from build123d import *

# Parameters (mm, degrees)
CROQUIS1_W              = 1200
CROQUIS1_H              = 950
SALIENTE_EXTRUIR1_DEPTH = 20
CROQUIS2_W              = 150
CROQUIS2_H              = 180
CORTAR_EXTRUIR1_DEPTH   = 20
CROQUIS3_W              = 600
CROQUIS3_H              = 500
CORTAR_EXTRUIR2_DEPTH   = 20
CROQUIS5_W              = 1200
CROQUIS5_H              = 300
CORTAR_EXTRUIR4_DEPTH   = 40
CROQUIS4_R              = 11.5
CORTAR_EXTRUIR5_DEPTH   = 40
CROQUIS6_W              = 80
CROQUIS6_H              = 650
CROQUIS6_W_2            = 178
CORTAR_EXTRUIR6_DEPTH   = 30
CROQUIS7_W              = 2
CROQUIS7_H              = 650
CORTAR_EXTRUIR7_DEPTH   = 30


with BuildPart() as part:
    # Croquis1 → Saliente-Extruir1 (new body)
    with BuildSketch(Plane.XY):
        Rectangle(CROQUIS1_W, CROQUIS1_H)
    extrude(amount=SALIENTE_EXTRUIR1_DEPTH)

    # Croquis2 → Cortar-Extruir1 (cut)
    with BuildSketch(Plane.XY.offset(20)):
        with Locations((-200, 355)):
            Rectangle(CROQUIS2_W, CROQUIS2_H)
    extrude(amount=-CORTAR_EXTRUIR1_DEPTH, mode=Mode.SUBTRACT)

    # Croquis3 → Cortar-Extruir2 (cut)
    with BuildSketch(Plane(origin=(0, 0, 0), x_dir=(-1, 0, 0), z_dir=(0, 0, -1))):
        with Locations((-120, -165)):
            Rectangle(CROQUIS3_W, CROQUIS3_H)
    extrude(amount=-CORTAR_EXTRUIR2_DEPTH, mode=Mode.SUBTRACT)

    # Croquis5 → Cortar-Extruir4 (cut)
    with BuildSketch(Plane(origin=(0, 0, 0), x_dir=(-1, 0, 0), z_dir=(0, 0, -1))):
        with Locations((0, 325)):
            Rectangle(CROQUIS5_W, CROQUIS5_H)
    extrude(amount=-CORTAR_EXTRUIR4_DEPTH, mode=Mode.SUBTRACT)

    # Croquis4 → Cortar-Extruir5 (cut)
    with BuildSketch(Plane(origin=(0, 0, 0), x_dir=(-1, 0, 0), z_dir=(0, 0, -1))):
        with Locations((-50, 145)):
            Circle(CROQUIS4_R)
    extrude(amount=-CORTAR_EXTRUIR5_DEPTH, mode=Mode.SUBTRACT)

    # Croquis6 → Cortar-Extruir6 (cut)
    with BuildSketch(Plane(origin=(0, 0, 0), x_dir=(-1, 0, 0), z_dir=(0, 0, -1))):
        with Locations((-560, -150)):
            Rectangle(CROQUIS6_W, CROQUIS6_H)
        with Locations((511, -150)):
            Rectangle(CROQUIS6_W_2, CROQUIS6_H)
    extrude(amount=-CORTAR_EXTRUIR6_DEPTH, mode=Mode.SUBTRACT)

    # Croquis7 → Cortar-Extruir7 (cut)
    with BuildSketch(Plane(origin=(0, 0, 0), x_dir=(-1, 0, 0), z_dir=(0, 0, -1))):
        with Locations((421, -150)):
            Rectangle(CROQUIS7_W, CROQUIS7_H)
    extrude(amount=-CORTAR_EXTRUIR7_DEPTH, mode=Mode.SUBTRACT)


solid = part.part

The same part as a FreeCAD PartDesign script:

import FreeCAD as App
import Part
import Sketcher
from FreeCAD import Vector
Q = App.Units.Quantity

doc = App.newDocument("Part")
body = doc.addObject("PartDesign::Body", "Body")

sketch1 = doc.addObject("Sketcher::SketchObject", "Sketch")
body.addObject(sketch1)
sketch1.AttachmentSupport = (doc.XY_Plane, [""])
sketch1.MapMode = "FlatFace"
sketch1.addGeometry([
    Part.LineSegment(Vector(-600, 475, 0), Vector(-600, -475, 0)),
    Part.LineSegment(Vector(-600, -475, 0), Vector(600, -475, 0)),
    Part.LineSegment(Vector(600, -475, 0), Vector(600, 475, 0)),
    Part.LineSegment(Vector(600, 475, 0), Vector(-600, 475, 0)),
], False)
sketch1.addConstraint([
    Sketcher.Constraint("Coincident", 0, 2, 1, 1),
    Sketcher.Constraint("Coincident", 1, 2, 2, 1),
    Sketcher.Constraint("Coincident", 2, 2, 3, 1),
    Sketcher.Constraint("Coincident", 3, 2, 0, 1),
    Sketcher.Constraint("Vertical", 0),
    Sketcher.Constraint("Horizontal", 1),
    Sketcher.Constraint("Vertical", 2),
    Sketcher.Constraint("Horizontal", 3),
    Sketcher.Constraint("Symmetric", 0, 2, 2, 2, -1, 1),
    Sketcher.Constraint("DistanceX", 1, 1, 1, 2, Q("1200 mm")),
    Sketcher.Constraint("DistanceY", 0, 2, 0, 1, Q("950 mm")),
])
pad1 = doc.addObject("PartDesign::Pad", "Pad")
body.addObject(pad1)
pad1.Profile = sketch1
pad1.Length = 20

sketch2 = doc.addObject("Sketcher::SketchObject", "Sketch001")
body.addObject(sketch2)
sketch2.AttachmentSupport = (doc.XY_Plane, [""])
sketch2.MapMode = "FlatFace"
sketch2.AttachmentOffset = App.Placement(Vector(0, 0, 20), App.Rotation())
sketch2.addGeometry([
    Part.LineSegment(Vector(-275, 445, 0), Vector(-275, 265, 0)),
    Part.LineSegment(Vector(-275, 265, 0), Vector(-125, 265, 0)),
    Part.LineSegment(Vector(-125, 265, 0), Vector(-125, 445, 0)),
    Part.LineSegment(Vector(-125, 445, 0), Vector(-275, 445, 0)),
], False)
sketch2.addConstraint([
    Sketcher.Constraint("Coincident", 0, 2, 1, 1),
    Sketcher.Constraint("Coincident", 1, 2, 2, 1),
    Sketcher.Constraint("Coincident", 2, 2, 3, 1),
    Sketcher.Constraint("Coincident", 3, 2, 0, 1),
    Sketcher.Constraint("Vertical", 0),
    Sketcher.Constraint("Horizontal", 1),
    Sketcher.Constraint("Vertical", 2),
    Sketcher.Constraint("Horizontal", 3),
    Sketcher.Constraint("DistanceX", 1, 1, 1, 2, Q("150 mm")),
    Sketcher.Constraint("DistanceY", 0, 2, 0, 1, Q("180 mm")),
    Sketcher.Constraint("DistanceX", 0, 2, -1, 1, Q("275 mm")),
    Sketcher.Constraint("DistanceY", -1, 1, 0, 2, Q("265 mm")),
])
pocket1 = doc.addObject("PartDesign::Pocket", "Pocket")
body.addObject(pocket1)
pocket1.Profile = sketch2
pocket1.Length = 20

sketch3 = doc.addObject("Sketcher::SketchObject", "Sketch002")
body.addObject(sketch3)
sketch3.AttachmentSupport = (doc.XY_Plane, [""])
sketch3.MapMode = "FlatFace"
sketch3.addGeometry([
    Part.LineSegment(Vector(420, 85, 0), Vector(420, -415, 0)),
    Part.LineSegment(Vector(420, -415, 0), Vector(-180, -415, 0)),
    Part.LineSegment(Vector(-180, -415, 0), Vector(-180, 85, 0)),
    Part.LineSegment(Vector(-180, 85, 0), Vector(420, 85, 0)),
], False)
sketch3.addConstraint([
    Sketcher.Constraint("Coincident", 0, 2, 1, 1),
    Sketcher.Constraint("Coincident", 1, 2, 2, 1),
    Sketcher.Constraint("Coincident", 2, 2, 3, 1),
    Sketcher.Constraint("Coincident", 3, 2, 0, 1),
    Sketcher.Constraint("Vertical", 0),
    Sketcher.Constraint("Horizontal", 1),
    Sketcher.Constraint("Vertical", 2),
    Sketcher.Constraint("Horizontal", 3),
    Sketcher.Constraint("DistanceX", 1, 2, 1, 1, Q("600 mm")),
    Sketcher.Constraint("DistanceY", 0, 2, 0, 1, Q("500 mm")),
    Sketcher.Constraint("DistanceX", -1, 1, 0, 2, Q("420 mm")),
    Sketcher.Constraint("DistanceY", 0, 2, -1, 1, Q("415 mm")),
])
pocket2 = doc.addObject("PartDesign::Pocket", "Pocket001")
body.addObject(pocket2)
pocket2.Profile = sketch3
pocket2.Length = 20
pocket2.Reversed = True

sketch4 = doc.addObject("Sketcher::SketchObject", "Sketch003")
body.addObject(sketch4)
sketch4.AttachmentSupport = (doc.XY_Plane, [""])
sketch4.MapMode = "FlatFace"
sketch4.addGeometry([
    Part.LineSegment(Vector(600, 475, 0), Vector(600, 175, 0)),
    Part.LineSegment(Vector(600, 175, 0), Vector(-600, 175, 0)),
    Part.LineSegment(Vector(-600, 175, 0), Vector(-600, 475, 0)),
    Part.LineSegment(Vector(-600, 475, 0), Vector(600, 475, 0)),
], False)
sketch4.addConstraint([
    Sketcher.Constraint("Coincident", 0, 2, 1, 1),
    Sketcher.Constraint("Coincident", 1, 2, 2, 1),
    Sketcher.Constraint("Coincident", 2, 2, 3, 1),
    Sketcher.Constraint("Coincident", 3, 2, 0, 1),
    Sketcher.Constraint("Vertical", 0),
    Sketcher.Constraint("Horizontal", 1),
    Sketcher.Constraint("Vertical", 2),
    Sketcher.Constraint("Horizontal", 3),
    Sketcher.Constraint("DistanceX", 1, 2, 1, 1, Q("1200 mm")),
    Sketcher.Constraint("DistanceY", 0, 2, 0, 1, Q("300 mm")),
    Sketcher.Constraint("DistanceX", -1, 1, 0, 2, Q("600 mm")),
    Sketcher.Constraint("DistanceY", -1, 1, 0, 2, Q("175 mm")),
])
pocket3 = doc.addObject("PartDesign::Pocket", "Pocket002")
body.addObject(pocket3)
pocket3.Profile = sketch4
pocket3.Length = 40
pocket3.Reversed = True

sketch5 = doc.addObject("Sketcher::SketchObject", "Sketch004")
body.addObject(sketch5)
sketch5.AttachmentSupport = (doc.XY_Plane, [""])
sketch5.MapMode = "FlatFace"
sketch5.addGeometry(Part.Circle(Vector(50, 145, 0), Vector(0, 0, 1), 11.5), False)
sketch5.addConstraint([
    Sketcher.Constraint("Diameter", 0, Q("23 mm")),
    Sketcher.Constraint("DistanceX", -1, 1, 0, 3, Q("50 mm")),
    Sketcher.Constraint("DistanceY", -1, 1, 0, 3, Q("145 mm")),
])
pocket4 = doc.addObject("PartDesign::Pocket", "Pocket003")
body.addObject(pocket4)
pocket4.Profile = sketch5
pocket4.Length = 40
pocket4.Reversed = True

sketch6 = doc.addObject("Sketcher::SketchObject", "Sketch005")
body.addObject(sketch6)
sketch6.AttachmentSupport = (doc.XY_Plane, [""])
sketch6.MapMode = "FlatFace"
sketch6.addGeometry([
    Part.LineSegment(Vector(600, 175, 0), Vector(600, -475, 0)),
    Part.LineSegment(Vector(600, -475, 0), Vector(520, -475, 0)),
    Part.LineSegment(Vector(520, -475, 0), Vector(520, 175, 0)),
    Part.LineSegment(Vector(520, 175, 0), Vector(600, 175, 0)),
    Part.LineSegment(Vector(-422, 175, 0), Vector(-422, -475, 0)),
    Part.LineSegment(Vector(-422, -475, 0), Vector(-600, -475, 0)),
    Part.LineSegment(Vector(-600, -475, 0), Vector(-600, 175, 0)),
    Part.LineSegment(Vector(-600, 175, 0), Vector(-422, 175, 0)),
], False)
sketch6.addConstraint([
    Sketcher.Constraint("Coincident", 0, 2, 1, 1),
    Sketcher.Constraint("Coincident", 1, 2, 2, 1),
    Sketcher.Constraint("Coincident", 2, 2, 3, 1),
    Sketcher.Constraint("Coincident", 3, 2, 0, 1),
    Sketcher.Constraint("Coincident", 4, 2, 5, 1),
    Sketcher.Constraint("Coincident", 5, 2, 6, 1),
    Sketcher.Constraint("Coincident", 6, 2, 7, 1),
    Sketcher.Constraint("Coincident", 7, 2, 4, 1),
    Sketcher.Constraint("Vertical", 0),
    Sketcher.Constraint("Horizontal", 1),
    Sketcher.Constraint("Vertical", 2),
    Sketcher.Constraint("Horizontal", 3),
    Sketcher.Constraint("Vertical", 4),
    Sketcher.Constraint("Horizontal", 5),
    Sketcher.Constraint("Vertical", 6),
    Sketcher.Constraint("Horizontal", 7),
    Sketcher.Constraint("Symmetric", 0, 2, 5, 2, -2),
    Sketcher.Constraint("Horizontal", 3, 2, 6, 2),
    Sketcher.Constraint("DistanceX", 1, 2, 1, 1, Q("80 mm")),
    Sketcher.Constraint("DistanceX", 5, 2, 5, 1, Q("178 mm")),
    Sketcher.Constraint("DistanceY", 0, 2, 0, 1, Q("650 mm")),
    Sketcher.Constraint("DistanceX", -1, 1, 0, 2, Q("600 mm")),
    Sketcher.Constraint("DistanceY", 0, 2, -1, 1, Q("475 mm")),
])
pocket5 = doc.addObject("PartDesign::Pocket", "Pocket004")
body.addObject(pocket5)
pocket5.Profile = sketch6
pocket5.Length = 30
pocket5.Reversed = True

sketch7 = doc.addObject("Sketcher::SketchObject", "Sketch006")
body.addObject(sketch7)
sketch7.AttachmentSupport = (doc.XY_Plane, [""])
sketch7.MapMode = "FlatFace"
sketch7.addGeometry([
    Part.LineSegment(Vector(-420, 175, 0), Vector(-420, -475, 0)),
    Part.LineSegment(Vector(-420, -475, 0), Vector(-422, -475, 0)),
    Part.LineSegment(Vector(-422, -475, 0), Vector(-422, 175, 0)),
    Part.LineSegment(Vector(-422, 175, 0), Vector(-420, 175, 0)),
], False)
sketch7.addConstraint([
    Sketcher.Constraint("Coincident", 0, 2, 1, 1),
    Sketcher.Constraint("Coincident", 1, 2, 2, 1),
    Sketcher.Constraint("Coincident", 2, 2, 3, 1),
    Sketcher.Constraint("Coincident", 3, 2, 0, 1),
    Sketcher.Constraint("Vertical", 0),
    Sketcher.Constraint("Horizontal", 1),
    Sketcher.Constraint("Vertical", 2),
    Sketcher.Constraint("Horizontal", 3),
    Sketcher.Constraint("DistanceX", 1, 2, 1, 1, Q("2 mm")),
    Sketcher.Constraint("DistanceY", 0, 2, 0, 1, Q("650 mm")),
    Sketcher.Constraint("DistanceX", 0, 2, -1, 1, Q("420 mm")),
    Sketcher.Constraint("DistanceY", 0, 2, -1, 1, Q("475 mm")),
])
pocket6 = doc.addObject("PartDesign::Pocket", "Pocket005")
body.addObject(pocket6)
pocket6.Profile = sketch7
pocket6.Length = 30
pocket6.Reversed = True

doc.recompute()
